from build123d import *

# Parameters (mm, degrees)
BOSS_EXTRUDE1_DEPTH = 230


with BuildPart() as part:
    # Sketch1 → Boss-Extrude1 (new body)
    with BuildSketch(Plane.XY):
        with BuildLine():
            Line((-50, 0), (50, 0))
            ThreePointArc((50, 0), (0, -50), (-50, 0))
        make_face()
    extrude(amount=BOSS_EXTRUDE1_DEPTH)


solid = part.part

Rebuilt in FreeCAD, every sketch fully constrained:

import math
import FreeCAD as App
import Part
import Sketcher

V = App.Vector

doc = App.newDocument("Part")
params = doc.addObject("Spreadsheet::Sheet", "Params")
for row, (alias, value) in enumerate([
    ("sketch1_radius", "50 mm"),
    ("pad1_length", "230 mm"),
], start=1):
    params.set(f"A{row}", alias)
    params.set(f"B{row}", "=" + value)
    params.setAlias(f"B{row}", alias)

body = doc.addObject("PartDesign::Body", "Body")

# Sketch on XY plane
sketch1 = body.newObject("Sketcher::SketchObject", "Sketch")
sketch1.AttachmentSupport = (doc.getObject("XY_Plane"), [""])
sketch1.MapMode = "FlatFace"
sketch1.addGeometry(Part.LineSegment(V(50, 0, 0), V(-50, 0, 0)), False)
sketch1.addGeometry(Part.ArcOfCircle(Part.Circle(V(0, 0, 0), V(0, 0, 1), 50), math.radians(180), math.radians(360)), False)
sketch1.addConstraint(Sketcher.Constraint("Coincident", 0, 1, 1, 2))
sketch1.addConstraint(Sketcher.Constraint("Coincident", 1, 1, 0, 2))
sketch1.addConstraint(Sketcher.Constraint("Horizontal", 0))
sketch1.addConstraint(Sketcher.Constraint("Coincident", 1, 3, -1, 1))
sketch1.addConstraint(Sketcher.Constraint("PointOnObject", 0, 1, -1))
sketch1.addConstraint(Sketcher.Constraint("Radius", 1, 50.0))
sketch1.setExpression("Constraints[5]", "Params.sketch1_radius")
pad1 = body.newObject("PartDesign::Pad", "Pad")
pad1.Profile = sketch1
pad1.setExpression("Length", "Params.pad1_length")

doc.recompute()
